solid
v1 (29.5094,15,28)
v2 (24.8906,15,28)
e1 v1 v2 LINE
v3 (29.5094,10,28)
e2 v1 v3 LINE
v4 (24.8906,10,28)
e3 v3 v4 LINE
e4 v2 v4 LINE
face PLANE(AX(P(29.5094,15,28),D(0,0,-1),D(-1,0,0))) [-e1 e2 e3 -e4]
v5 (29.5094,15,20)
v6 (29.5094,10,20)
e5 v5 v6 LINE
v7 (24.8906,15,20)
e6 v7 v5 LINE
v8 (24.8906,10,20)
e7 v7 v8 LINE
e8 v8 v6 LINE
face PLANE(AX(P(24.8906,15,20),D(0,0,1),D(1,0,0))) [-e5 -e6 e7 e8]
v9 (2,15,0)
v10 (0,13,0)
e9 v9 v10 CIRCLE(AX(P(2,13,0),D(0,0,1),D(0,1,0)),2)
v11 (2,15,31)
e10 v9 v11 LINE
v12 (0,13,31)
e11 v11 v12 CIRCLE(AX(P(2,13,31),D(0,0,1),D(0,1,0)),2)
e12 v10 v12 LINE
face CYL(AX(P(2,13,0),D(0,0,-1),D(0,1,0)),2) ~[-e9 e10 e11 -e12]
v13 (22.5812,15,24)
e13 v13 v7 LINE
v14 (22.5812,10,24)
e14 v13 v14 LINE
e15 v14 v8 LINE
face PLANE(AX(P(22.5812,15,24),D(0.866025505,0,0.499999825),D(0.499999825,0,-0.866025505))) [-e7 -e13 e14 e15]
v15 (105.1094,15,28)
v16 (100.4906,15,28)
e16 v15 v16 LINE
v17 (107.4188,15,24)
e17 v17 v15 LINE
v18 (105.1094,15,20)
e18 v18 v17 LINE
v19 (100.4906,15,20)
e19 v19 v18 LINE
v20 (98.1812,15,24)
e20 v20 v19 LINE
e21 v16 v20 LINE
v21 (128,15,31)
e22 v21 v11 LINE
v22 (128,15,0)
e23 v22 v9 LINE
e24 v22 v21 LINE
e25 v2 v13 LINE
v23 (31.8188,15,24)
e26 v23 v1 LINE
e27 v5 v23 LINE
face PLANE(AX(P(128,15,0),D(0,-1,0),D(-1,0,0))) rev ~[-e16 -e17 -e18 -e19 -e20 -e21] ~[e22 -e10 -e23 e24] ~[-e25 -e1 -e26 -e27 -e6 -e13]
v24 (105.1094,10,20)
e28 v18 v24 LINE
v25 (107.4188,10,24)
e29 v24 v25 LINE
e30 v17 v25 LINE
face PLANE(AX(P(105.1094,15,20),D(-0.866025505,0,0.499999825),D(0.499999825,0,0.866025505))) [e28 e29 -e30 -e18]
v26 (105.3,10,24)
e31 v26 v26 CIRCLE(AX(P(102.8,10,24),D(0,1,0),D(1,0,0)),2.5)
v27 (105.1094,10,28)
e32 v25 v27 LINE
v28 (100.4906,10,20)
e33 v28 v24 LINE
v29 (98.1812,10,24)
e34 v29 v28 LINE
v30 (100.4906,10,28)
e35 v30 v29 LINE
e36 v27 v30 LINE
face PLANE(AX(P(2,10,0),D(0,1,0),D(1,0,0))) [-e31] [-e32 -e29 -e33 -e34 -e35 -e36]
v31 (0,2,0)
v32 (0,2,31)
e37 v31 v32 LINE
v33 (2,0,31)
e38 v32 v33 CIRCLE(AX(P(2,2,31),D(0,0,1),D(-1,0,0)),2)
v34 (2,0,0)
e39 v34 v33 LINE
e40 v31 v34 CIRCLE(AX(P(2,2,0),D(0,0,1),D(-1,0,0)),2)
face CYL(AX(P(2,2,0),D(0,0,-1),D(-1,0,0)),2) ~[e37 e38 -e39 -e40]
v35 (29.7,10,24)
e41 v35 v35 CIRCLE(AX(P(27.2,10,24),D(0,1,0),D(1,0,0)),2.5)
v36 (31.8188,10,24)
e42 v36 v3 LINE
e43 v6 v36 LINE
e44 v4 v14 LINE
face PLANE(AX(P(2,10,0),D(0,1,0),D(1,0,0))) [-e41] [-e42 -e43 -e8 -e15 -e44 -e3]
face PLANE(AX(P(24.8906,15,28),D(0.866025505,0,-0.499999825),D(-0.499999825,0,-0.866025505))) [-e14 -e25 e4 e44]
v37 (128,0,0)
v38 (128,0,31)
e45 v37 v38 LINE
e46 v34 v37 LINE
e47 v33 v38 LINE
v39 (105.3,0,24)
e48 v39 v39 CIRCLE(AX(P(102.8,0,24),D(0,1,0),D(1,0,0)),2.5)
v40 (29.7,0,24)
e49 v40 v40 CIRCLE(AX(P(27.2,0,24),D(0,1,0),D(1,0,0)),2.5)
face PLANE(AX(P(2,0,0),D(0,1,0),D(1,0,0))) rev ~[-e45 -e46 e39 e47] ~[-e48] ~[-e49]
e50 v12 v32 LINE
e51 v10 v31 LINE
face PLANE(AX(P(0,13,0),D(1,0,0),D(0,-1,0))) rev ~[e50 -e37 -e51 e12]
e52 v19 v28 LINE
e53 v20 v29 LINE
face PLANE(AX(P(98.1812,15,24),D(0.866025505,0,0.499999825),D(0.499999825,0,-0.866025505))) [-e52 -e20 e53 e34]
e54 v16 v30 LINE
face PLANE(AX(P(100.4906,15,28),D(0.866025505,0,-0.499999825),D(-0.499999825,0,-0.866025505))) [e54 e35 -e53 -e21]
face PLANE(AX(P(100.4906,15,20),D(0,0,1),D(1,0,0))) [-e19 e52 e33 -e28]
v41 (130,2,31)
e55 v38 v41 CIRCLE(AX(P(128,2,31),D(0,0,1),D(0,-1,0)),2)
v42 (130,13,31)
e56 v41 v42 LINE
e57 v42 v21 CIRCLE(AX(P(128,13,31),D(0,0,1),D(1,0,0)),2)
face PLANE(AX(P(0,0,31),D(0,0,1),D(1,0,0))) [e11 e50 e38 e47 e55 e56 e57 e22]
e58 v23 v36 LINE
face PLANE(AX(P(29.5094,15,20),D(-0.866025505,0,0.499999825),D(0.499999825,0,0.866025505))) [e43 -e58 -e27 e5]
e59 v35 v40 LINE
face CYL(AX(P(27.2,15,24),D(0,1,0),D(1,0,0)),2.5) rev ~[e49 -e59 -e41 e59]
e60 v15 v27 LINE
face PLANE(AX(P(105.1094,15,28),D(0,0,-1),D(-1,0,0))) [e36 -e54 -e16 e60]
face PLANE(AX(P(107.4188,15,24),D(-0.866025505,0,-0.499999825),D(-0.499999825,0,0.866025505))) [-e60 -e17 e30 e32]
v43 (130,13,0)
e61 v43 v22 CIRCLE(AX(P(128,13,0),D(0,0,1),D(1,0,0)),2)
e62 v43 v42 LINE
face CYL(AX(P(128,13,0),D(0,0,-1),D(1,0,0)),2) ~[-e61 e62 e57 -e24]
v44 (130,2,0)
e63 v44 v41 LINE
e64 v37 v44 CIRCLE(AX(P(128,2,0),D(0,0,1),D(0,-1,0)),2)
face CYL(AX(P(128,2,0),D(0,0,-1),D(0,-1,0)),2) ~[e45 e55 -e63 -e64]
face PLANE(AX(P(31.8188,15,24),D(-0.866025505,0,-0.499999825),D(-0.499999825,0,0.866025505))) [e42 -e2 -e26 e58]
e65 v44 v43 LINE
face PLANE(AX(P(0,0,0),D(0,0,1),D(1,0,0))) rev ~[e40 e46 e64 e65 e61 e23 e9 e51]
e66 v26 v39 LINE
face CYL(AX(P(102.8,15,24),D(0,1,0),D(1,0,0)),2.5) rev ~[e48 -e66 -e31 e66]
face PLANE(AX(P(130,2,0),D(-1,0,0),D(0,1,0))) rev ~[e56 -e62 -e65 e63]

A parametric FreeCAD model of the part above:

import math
import FreeCAD as App
import Part
import Sketcher
Q = App.Units.Quantity


def add_polygon(sketch, points):
    """Adds a closed chain of lines whose ends are joined by coincident constraints."""
    first, n = sketch.GeometryCount, len(points)
    for a, b in zip(points, points[1:] + points[:1]):
        sketch.addGeometry(Part.LineSegment(App.Vector(*a, 0), App.Vector(*b, 0)), False)
    for i in range(n):
        sketch.addConstraint(Sketcher.Constraint("Coincident", first + i, 2, first + (i + 1) % n, 1))

doc = App.newDocument("Part")
body = doc.addObject("PartDesign::Body", "Body")

# Sketch on XY plane
sketch1 = body.newObject("Sketcher::SketchObject", "Sketch")
sketch1.AttachmentSupport = (doc.getObject("XY_Plane"), [""])
sketch1.MapMode = "FlatFace"
sketch1.addGeometry(Part.ArcOfCircle(Part.Circle(App.Vector(2, 2, 0), App.Vector(0, 0, 1), 2), math.radians(180), math.radians(270)), False)
sketch1.addGeometry(Part.LineSegment(App.Vector(2, 0, 0), App.Vector(128, 0, 0)), False)
sketch1.addGeometry(Part.ArcOfCircle(Part.Circle(App.Vector(128, 2, 0), App.Vector(0, 0, 1), 2), math.radians(-90), math.radians(0)), False)
sketch1.addGeometry(Part.LineSegment(App.Vector(130, 2, 0), App.Vector(130, 13, 0)), False)
sketch1.addGeometry(Part.ArcOfCircle(Part.Circle(App.Vector(128, 13, 0), App.Vector(0, 0, 1), 2), math.radians(0), math.radians(90)), False)
sketch1.addGeometry(Part.LineSegment(App.Vector(128, 15, 0), App.Vector(2, 15, 0)), False)
sketch1.addGeometry(Part.ArcOfCircle(Part.Circle(App.Vector(2, 13, 0), App.Vector(0, 0, 1), 2), math.radians(90), math.radians(180)), False)
sketch1.addGeometry(Part.LineSegment(App.Vector(0, 13, 0), App.Vector(0, 2, 0)), False)
sketch1.addConstraint(Sketcher.Constraint("Tangent", 0, 2, 1, 1))
sketch1.addConstraint(Sketcher.Constraint("Tangent", 1, 2, 2, 1))
sketch1.addConstraint(Sketcher.Constraint("Tangent", 2, 2, 3, 1))
sketch1.addConstraint(Sketcher.Constraint("Tangent", 3, 2, 4, 1))
sketch1.addConstraint(Sketcher.Constraint("Tangent", 4, 2, 5, 1))
sketch1.addConstraint(Sketcher.Constraint("Tangent", 5, 2, 6, 1))
sketch1.addConstraint(Sketcher.Constraint("Tangent", 6, 2, 7, 1))
sketch1.addConstraint(Sketcher.Constraint("Tangent", 7, 2, 0, 1))
sketch1.addConstraint(Sketcher.Constraint("Horizontal", 1))
sketch1.addConstraint(Sketcher.Constraint("Vertical", 3))
sketch1.addConstraint(Sketcher.Constraint("Horizontal", 5))
sketch1.addConstraint(Sketcher.Constraint("Vertical", 7))
sketch1.addConstraint(Sketcher.Constraint("Equal", 0, 2))
sketch1.addConstraint(Sketcher.Constraint("Equal", 2, 4))
sketch1.addConstraint(Sketcher.Constraint("Equal", 4, 6))
sketch1.addConstraint(Sketcher.Constraint("PointOnObject", 0, 2, -1))
sketch1.addConstraint(Sketcher.Constraint("PointOnObject", 6, 2, -2))
sketch1.addConstraint(Sketcher.Constraint("Radius", 0, Q("2 mm")))
sketch1.addConstraint(Sketcher.Constraint("DistanceX", -1, 1, 2, 2, Q("130 mm")))
sketch1.addConstraint(Sketcher.Constraint("DistanceY", -1, 1, 4, 2, Q("15 mm")))
pad1 = body.newObject("PartDesign::Pad", "Pad")
pad1.Profile = sketch1
pad1.Length = 31

# Sketch on XZ plane
sketch2 = body.newObject("Sketcher::SketchObject", "Sketch001")
sketch2.AttachmentSupport = (doc.getObject("XZ_Plane"), [""])
sketch2.MapMode = "FlatFace"
sketch2.AttachmentOffset = App.Placement(App.Vector(0, 0, -15), App.Rotation())
sketch2.addGeometry(Part.Circle(App.Vector(102.8, 24, 0), App.Vector(0, 0, 1), 2.5), False)
sketch2.addGeometry(Part.Circle(App.Vector(27.2, 24, 0), App.Vector(0, 0, 1), 2.5), False)
sketch2.addConstraint(Sketcher.Constraint("Equal", 0, 1))
sketch2.addConstraint(Sketcher.Constraint("Horizontal", 0, 3, 1, 3))
sketch2.addConstraint(Sketcher.Constraint("Diameter", 0, Q("5 mm")))
sketch2.addConstraint(Sketcher.Constraint("DistanceY", -1, 1, 0, 3, Q("24 mm")))
sketch2.addConstraint(Sketcher.Constraint("DistanceX", -1, 1, 0, 3, Q("102.8 mm")))
sketch2.addConstraint(Sketcher.Constraint("DistanceX", -1, 1, 1, 3, Q("27.2 mm")))
pocket1 = body.newObject("PartDesign::Pocket", "Pocket")
pocket1.Profile = sketch2
pocket1.Type = "UpToFirst"
pocket1.Reversed = True

# Sketch on XZ plane
sketch3 = body.newObject("Sketcher::SketchObject", "Sketch002")
sketch3.AttachmentSupport = (doc.getObject("XZ_Plane"), [""])
sketch3.MapMode = "FlatFace"
sketch3.AttachmentOffset = App.Placement(App.Vector(0, 0, -15), App.Rotation())
add_polygon(sketch3, [(29.5094, 20), (24.8906, 20), (22.5812, 24), (24.8906, 28), (29.5094, 28), (31.8188, 24)])  # lines 0-5
add_polygon(sketch3, [(105.1094, 20), (100.4906, 20), (98.1812, 24), (100.4906, 28), (105.1094, 28), (107.4188, 24)])  # lines 6-11
sketch3.addGeometry(Part.Circle(App.Vector(102.8, 24, 0), App.Vector(0, 0, 1), 2.5), False)  # 12
sketch3.addConstraint(Sketcher.Constraint("Horizontal", 0))
sketch3.addConstraint(Sketcher.Constraint("Horizontal", 3))
sketch3.addConstraint(Sketcher.Constraint("Horizontal", 6))
sketch3.addConstraint(Sketcher.Constraint("Horizontal", 9))
sketch3.addConstraint(Sketcher.Constraint("Parallel", 1, 4))
sketch3.addConstraint(Sketcher.Constraint("Parallel", 2, 5))
sketch3.addConstraint(Sketcher.Constraint("Parallel", 4, 7))
sketch3.addConstraint(Sketcher.Constraint("Parallel", 5, 8))
sketch3.addConstraint(Sketcher.Constraint("Parallel", 7, 10))
sketch3.addConstraint(Sketcher.Constraint("Parallel", 8, 11))
sketch3.addConstraint(Sketcher.Constraint("Horizontal", 12, 3, 1, 2))
sketch3.addConstraint(Sketcher.Constraint("Horizontal", 1, 2, 4, 2))
sketch3.addConstraint(Sketcher.Constraint("Horizontal", 5, 2, 6, 2))
sketch3.addConstraint(Sketcher.Constraint("Horizontal", 4, 2, 7, 2))
sketch3.addConstraint(Sketcher.Constraint("Horizontal", 3, 2, 8, 2))
sketch3.addConstraint(Sketcher.Constraint("Horizontal", 7, 2, 10, 2))
sketch3.addConstraint(Sketcher.Constraint("Vertical", 0, 2, 2, 2))
sketch3.addConstraint(Sketcher.Constraint("Vertical", 3, 2, 5, 2))
sketch3.addConstraint(Sketcher.Constraint("Equal", 3, 6))
sketch3.addConstraint(Sketcher.Constraint("Diameter", 12, Q("5 mm")))
sketch3.addConstraint(Sketcher.Constraint("DistanceY", 0, 2, 2, 2, Q("8 mm")))
sketch3.addConstraint(Sketcher.Constraint("Angle", 1, Q("120 deg")))
sketch3.addConstraint(Sketcher.Constraint("DistanceY", -1, 1, 12, 3, Q("24 mm")))
sketch3.addConstraint(Sketcher.Constraint("DistanceX", -1, 1, 12, 3, Q("102.8 mm")))
sketch3.addConstraint(Sketcher.Constraint("DistanceX", 0, 2, 6, 2, Q("75.6 mm")))
sketch3.addConstraint(Sketcher.Constraint("DistanceX", 0, 2, 0, 1, Q("4.6188 mm")))
sketch3.addConstraint(Sketcher.Constraint("DistanceX", -1, 1, 0, 2, Q("24.8906 mm")))
pocket2 = body.newObject("PartDesign::Pocket", "Pocket001")
pocket2.Profile = sketch3
pocket2.Length = 5
pocket2.Reversed = True

doc.recompute()
